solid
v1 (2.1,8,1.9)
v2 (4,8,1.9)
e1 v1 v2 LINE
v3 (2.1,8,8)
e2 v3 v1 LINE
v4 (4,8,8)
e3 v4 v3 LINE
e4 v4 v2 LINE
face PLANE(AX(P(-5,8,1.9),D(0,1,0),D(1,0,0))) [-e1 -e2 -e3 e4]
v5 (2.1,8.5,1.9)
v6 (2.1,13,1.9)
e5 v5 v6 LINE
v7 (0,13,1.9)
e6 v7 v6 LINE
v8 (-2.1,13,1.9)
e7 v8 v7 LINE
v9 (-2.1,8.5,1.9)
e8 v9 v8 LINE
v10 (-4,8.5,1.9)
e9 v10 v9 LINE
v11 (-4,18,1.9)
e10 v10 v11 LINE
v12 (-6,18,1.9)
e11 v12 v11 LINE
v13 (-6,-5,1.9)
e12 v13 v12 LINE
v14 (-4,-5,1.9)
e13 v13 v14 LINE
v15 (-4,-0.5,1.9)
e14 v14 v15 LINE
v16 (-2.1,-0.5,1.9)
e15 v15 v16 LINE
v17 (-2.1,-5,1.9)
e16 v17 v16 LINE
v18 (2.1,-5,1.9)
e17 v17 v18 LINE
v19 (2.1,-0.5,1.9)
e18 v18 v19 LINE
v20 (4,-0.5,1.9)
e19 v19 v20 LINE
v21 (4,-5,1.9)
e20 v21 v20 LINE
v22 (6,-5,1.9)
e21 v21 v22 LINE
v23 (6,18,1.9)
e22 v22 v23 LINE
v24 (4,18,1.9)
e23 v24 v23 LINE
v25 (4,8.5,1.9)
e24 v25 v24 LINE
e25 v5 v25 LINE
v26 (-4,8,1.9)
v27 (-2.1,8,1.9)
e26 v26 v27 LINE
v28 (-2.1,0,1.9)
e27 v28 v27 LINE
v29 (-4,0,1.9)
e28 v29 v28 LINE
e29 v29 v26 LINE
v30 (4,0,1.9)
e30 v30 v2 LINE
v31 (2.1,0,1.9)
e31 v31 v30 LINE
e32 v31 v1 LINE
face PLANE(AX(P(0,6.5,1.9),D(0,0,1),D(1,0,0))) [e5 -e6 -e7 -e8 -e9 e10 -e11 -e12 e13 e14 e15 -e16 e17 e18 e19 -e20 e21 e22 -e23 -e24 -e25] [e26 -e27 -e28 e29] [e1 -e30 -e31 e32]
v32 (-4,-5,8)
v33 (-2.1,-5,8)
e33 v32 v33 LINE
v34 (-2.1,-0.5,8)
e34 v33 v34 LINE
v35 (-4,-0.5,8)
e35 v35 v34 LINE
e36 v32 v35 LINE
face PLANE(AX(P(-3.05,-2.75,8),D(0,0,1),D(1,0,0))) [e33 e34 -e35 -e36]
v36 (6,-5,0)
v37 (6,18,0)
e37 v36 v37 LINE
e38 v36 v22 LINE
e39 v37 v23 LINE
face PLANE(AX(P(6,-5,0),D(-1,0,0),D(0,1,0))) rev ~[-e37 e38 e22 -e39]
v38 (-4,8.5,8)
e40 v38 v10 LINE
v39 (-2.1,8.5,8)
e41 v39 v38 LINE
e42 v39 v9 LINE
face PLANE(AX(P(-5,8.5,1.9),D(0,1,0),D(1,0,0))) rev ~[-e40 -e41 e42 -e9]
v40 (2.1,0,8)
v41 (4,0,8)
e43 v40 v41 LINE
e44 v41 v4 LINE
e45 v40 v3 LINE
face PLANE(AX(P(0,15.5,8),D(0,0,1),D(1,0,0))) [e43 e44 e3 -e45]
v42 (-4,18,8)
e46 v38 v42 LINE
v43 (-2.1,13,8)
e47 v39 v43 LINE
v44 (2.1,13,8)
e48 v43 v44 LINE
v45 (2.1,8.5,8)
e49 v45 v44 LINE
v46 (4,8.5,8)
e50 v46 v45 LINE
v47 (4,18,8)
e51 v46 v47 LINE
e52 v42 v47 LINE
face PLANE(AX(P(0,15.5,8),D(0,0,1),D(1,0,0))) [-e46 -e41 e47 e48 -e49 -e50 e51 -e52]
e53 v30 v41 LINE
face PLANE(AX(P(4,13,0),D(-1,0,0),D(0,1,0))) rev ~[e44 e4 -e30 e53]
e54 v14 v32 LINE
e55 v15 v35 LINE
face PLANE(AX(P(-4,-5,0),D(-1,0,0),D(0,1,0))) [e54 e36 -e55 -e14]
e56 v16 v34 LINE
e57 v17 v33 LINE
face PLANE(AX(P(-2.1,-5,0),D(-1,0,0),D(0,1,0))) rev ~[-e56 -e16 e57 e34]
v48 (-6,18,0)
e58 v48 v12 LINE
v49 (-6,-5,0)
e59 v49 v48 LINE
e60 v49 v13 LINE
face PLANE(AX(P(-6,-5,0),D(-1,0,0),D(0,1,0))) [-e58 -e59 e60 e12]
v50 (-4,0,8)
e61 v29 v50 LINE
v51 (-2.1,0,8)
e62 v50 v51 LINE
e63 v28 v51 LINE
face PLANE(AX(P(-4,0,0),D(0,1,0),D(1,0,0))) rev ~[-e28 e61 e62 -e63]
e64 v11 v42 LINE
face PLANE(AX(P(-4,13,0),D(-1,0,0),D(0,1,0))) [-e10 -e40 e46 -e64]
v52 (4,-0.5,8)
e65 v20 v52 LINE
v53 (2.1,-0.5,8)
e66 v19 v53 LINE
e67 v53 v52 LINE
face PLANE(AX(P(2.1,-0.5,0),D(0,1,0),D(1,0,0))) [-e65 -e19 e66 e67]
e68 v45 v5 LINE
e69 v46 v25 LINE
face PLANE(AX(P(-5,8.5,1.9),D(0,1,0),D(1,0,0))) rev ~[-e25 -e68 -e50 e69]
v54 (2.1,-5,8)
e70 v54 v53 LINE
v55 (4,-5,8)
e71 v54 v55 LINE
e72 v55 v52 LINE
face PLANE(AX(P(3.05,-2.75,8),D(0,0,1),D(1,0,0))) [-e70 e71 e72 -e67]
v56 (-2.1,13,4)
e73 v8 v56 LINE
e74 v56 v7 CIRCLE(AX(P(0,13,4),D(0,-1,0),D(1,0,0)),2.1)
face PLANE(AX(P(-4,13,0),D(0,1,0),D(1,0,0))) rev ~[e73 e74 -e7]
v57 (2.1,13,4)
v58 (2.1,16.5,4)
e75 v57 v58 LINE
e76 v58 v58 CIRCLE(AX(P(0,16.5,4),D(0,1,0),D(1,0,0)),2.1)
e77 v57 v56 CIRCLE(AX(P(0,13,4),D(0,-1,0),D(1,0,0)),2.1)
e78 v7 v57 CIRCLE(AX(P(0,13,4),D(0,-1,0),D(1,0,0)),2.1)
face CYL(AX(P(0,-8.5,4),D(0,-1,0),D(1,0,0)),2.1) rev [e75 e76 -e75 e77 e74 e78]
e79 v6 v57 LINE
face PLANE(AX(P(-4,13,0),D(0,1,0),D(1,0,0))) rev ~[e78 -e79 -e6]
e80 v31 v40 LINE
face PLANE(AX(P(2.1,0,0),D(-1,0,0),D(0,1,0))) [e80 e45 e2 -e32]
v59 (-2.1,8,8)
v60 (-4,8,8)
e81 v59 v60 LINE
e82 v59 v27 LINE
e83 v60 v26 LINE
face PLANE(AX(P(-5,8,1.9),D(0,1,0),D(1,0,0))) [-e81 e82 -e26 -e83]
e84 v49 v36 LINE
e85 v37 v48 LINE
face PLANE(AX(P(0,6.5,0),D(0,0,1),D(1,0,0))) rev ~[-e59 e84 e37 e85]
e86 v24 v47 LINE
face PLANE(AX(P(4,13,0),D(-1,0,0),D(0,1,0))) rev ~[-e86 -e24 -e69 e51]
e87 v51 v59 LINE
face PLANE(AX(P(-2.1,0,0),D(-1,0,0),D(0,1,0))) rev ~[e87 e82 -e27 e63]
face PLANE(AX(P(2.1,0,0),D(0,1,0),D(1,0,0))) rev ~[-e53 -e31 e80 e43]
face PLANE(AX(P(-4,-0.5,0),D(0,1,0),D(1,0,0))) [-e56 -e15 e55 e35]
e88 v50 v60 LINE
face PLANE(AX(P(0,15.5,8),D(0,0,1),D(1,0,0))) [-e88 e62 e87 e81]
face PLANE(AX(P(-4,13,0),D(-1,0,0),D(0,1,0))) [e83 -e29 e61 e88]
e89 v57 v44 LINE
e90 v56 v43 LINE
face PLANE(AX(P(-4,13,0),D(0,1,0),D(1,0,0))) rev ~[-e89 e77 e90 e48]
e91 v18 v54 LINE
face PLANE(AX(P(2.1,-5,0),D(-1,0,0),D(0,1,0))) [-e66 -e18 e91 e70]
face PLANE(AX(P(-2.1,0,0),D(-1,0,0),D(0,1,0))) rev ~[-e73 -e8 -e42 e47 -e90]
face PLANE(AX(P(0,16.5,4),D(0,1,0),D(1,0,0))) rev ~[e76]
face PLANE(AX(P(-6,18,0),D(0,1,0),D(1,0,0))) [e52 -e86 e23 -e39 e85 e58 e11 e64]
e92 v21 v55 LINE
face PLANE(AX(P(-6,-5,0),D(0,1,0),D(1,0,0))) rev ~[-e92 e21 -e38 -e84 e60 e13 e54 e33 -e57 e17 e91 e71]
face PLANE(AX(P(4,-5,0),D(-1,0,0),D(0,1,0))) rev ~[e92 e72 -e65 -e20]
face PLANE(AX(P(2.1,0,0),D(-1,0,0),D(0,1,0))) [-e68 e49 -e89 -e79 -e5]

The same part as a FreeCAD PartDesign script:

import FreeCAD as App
import Part
import Sketcher

doc = App.newDocument("Part")
body = doc.addObject("PartDesign::Body", "Body")

# Sketch on XY plane
sketch1 = body.newObject("Sketcher::SketchObject", "Sketch")
sketch1.AttachmentSupport = (doc.getObject("XY_Plane"), [""])
sketch1.MapMode = "FlatFace"
sketch1.AttachmentOffset = App.Placement(App.Vector(0, 0, 1.9), App.Rotation())
sketch1.addGeometry([
    Part.LineSegment(App.Vector(-5, 8.5, 0), App.Vector(-5, 8, 0)),
    Part.LineSegment(App.Vector(-5, 8, 0), App.Vector(5, 8, 0)),
    Part.LineSegment(App.Vector(5, 8, 0), App.Vector(5, 8.5, 0)),
    Part.LineSegment(App.Vector(5, 8.5, 0), App.Vector(-5, 8.5, 0)),
], False)
sketch1.addConstraint([
    Sketcher.Constraint("Coincident", 0, 2, 1, 1),
    Sketcher.Constraint("Coincident", 1, 2, 2, 1),
    Sketcher.Constraint("Coincident", 2, 2, 3, 1),
    Sketcher.Constraint("Coincident", 3, 2, 0, 1),
    Sketcher.Constraint("Vertical", 0),
    Sketcher.Constraint("Horizontal", 1),
    Sketcher.Constraint("Vertical", 2),
    Sketcher.Constraint("Horizontal", 3),
    Sketcher.Constraint("DistanceX", 1, 1, 1, 2, 10.0),
    Sketcher.Constraint("DistanceY", 0, 2, 0, 1, 0.5),
    Sketcher.Constraint("DistanceX", 0, 2, -1, 1, 5.0),
    Sketcher.Constraint("DistanceY", -1, 1, 0, 2, 8.0),
])
pad1 = body.newObject("PartDesign::Pad", "Pad")
pad1.Profile = sketch1
pad1.Length = 10
body2 = doc.addObject("PartDesign::Body", "Body001")

# Sketch on XY plane
sketch2 = body2.newObject("Sketcher::SketchObject", "Sketch001")
sketch2.AttachmentSupport = (doc.getObject("XY_Plane001"), [""])
sketch2.MapMode = "FlatFace"
sketch2.addGeometry([
    Part.LineSegment(App.Vector(2.1, 13, 0), App.Vector(2.1, 0, 0)),
    Part.LineSegment(App.Vector(2.1, 0, 0), App.Vector(4, 0, 0)),
    Part.LineSegment(App.Vector(4, 0, 0), App.Vector(4, 13, 0)),
    Part.LineSegment(App.Vector(4, 13, 0), App.Vector(2.1, 13, 0)),
], False)
sketch2.addConstraint([
    Sketcher.Constraint("Coincident", 0, 2, 1, 1),
    Sketcher.Constraint("Coincident", 1, 2, 2, 1),
    Sketcher.Constraint("Coincident", 2, 2, 3, 1),
    Sketcher.Constraint("Coincident", 3, 2, 0, 1),
    Sketcher.Constraint("Vertical", 0),
    Sketcher.Constraint("Horizontal", 1),
    Sketcher.Constraint("Vertical", 2),
    Sketcher.Constraint("Horizontal", 3),
    Sketcher.Constraint("PointOnObject", 0, 2, -1),
    Sketcher.Constraint("DistanceY", 0, 2, 0, 1, 13.0),
    Sketcher.Constraint("DistanceX", 1, 1, 1, 2, 1.9),
    Sketcher.Constraint("DistanceX", -1, 1, 1, 2, 4.0),
])
pad2 = body2.newObject("PartDesign::Pad", "Pad001")
pad2.Profile = sketch2
pad2.Length = 8
body3 = doc.addObject("PartDesign::Body", "Body002")

# Sketch on XY plane
sketch3 = body3.newObject("Sketcher::SketchObject", "Sketch002")
sketch3.AttachmentSupport = (doc.getObject("XY_Plane002"), [""])
sketch3.MapMode = "FlatFace"
sketch3.addGeometry([
    Part.LineSegment(App.Vector(2.1, -0.5, 0), App.Vector(2.1, -5, 0)),
    Part.LineSegment(App.Vector(2.1, -5, 0), App.Vector(4, -5, 0)),
    Part.LineSegment(App.Vector(4, -5, 0), App.Vector(4, -0.5, 0)),
    Part.LineSegment(App.Vector(4, -0.5, 0), App.Vector(2.1, -0.5, 0)),
], False)
sketch3.addConstraint([
    Sketcher.Constraint("Coincident", 0, 2, 1, 1),
    Sketcher.Constraint("Coincident", 1, 2, 2, 1),
    Sketcher.Constraint("Coincident", 2, 2, 3, 1),
    Sketcher.Constraint("Coincident", 3, 2, 0, 1),
    Sketcher.Constraint("Vertical", 0),
    Sketcher.Constraint("Horizontal", 1),
    Sketcher.Constraint("Vertical", 2),
    Sketcher.Constraint("Horizontal", 3),
    Sketcher.Constraint("DistanceX", 1, 1, 1, 2, 1.9),
    Sketcher.Constraint("DistanceY", 0, 2, 0, 1, 4.5),
    Sketcher.Constraint("DistanceY", 0, 2, -1, 1, 5.0),
    Sketcher.Constraint("DistanceX", -1, 1, 1, 2, 4.0),
])
pad3 = body3.newObject("PartDesign::Pad", "Pad002")
pad3.Profile = sketch3
pad3.Length = 8
body4 = doc.addObject("PartDesign::Body", "Body003")

# Sketch on XZ plane
sketch4 = body4.newObject("Sketcher::SketchObject", "Sketch003")
sketch4.AttachmentSupport = (doc.getObject("XZ_Plane003"), [""])
sketch4.MapMode = "FlatFace"
sketch4.AttachmentOffset = App.Placement(App.Vector(0, 0, 8.5), App.Rotation())
sketch4.addGeometry(Part.Circle(App.Vector(0, 4, 0), App.Vector(0, 0, 1), 2.1), False)
sketch4.addConstraint([
    Sketcher.Constraint("PointOnObject", 0, 3, -2),
    Sketcher.Constraint("Diameter", 0, 4.2),
    Sketcher.Constraint("DistanceY", -1, 1, 0, 3, 4.0),
])
pad4 = body4.newObject("PartDesign::Pad", "Pad003")
pad4.Profile = sketch4
pad4.Length = 25
pad4.Reversed = True
body5 = doc.addObject("PartDesign::Body", "Body004")

# Sketch on XY plane
sketch5 = body5.newObject("Sketcher::SketchObject", "Sketch004")
sketch5.AttachmentSupport = (doc.getObject("XY_Plane004"), [""])
sketch5.MapMode = "FlatFace"
sketch5.addGeometry([
    Part.LineSegment(App.Vector(-4, 18, 0), App.Vector(-4, 13, 0)),
    Part.LineSegment(App.Vector(-4, 13, 0), App.Vector(4, 13, 0)),
    Part.LineSegment(App.Vector(4, 13, 0), App.Vector(4, 18, 0)),
    Part.LineSegment(App.Vector(4, 18, 0), App.Vector(-4, 18, 0)),
], False)
sketch5.addConstraint([
    Sketcher.Constraint("Coincident", 0, 2, 1, 1),
    Sketcher.Constraint("Coincident", 1, 2, 2, 1),
    Sketcher.Constraint("Coincident", 2, 2, 3, 1),
    Sketcher.Constraint("Coincident", 3, 2, 0, 1),
    Sketcher.Constraint("Vertical", 0),
    Sketcher.Constraint("Horizontal", 1),
    Sketcher.Constraint("Vertical", 2),
    Sketcher.Constraint("Horizontal", 3),
    Sketcher.Constraint("DistanceX", 1, 1, 1, 2, 8.0),
    Sketcher.Constraint("DistanceY", 0, 2, 0, 1, 5.0),
    Sketcher.Constraint("DistanceX", 0, 2, -1, 1, 4.0),
    Sketcher.Constraint("DistanceY", -1, 1, 0, 2, 13.0),
])
pad5 = body5.newObject("PartDesign::Pad", "Pad004")
pad5.Profile = sketch5
pad5.Length = 8
doc.recompute()

boolean = body5.newObject("PartDesign::Boolean", "Boolean")
boolean.Type = "Cut"
boolean.addObjects([body4])
body6 = doc.addObject("PartDesign::Body", "Body005")

# Sketch on XY plane
sketch6 = body6.newObject("Sketcher::SketchObject", "Sketch005")
sketch6.AttachmentSupport = (doc.getObject("XY_Plane005"), [""])
sketch6.MapMode = "FlatFace"
sketch6.addGeometry([
    Part.LineSegment(App.Vector(-4, -0.5, 0), App.Vector(-4, -5, 0)),
    Part.LineSegment(App.Vector(-4, -5, 0), App.Vector(-2.1, -5, 0)),
    Part.LineSegment(App.Vector(-2.1, -5, 0), App.Vector(-2.1, -0.5, 0)),
    Part.LineSegment(App.Vector(-2.1, -0.5, 0), App.Vector(-4, -0.5, 0)),
], False)
sketch6.addConstraint([
    Sketcher.Constraint("Coincident", 0, 2, 1, 1),
    Sketcher.Constraint("Coincident", 1, 2, 2, 1),
    Sketcher.Constraint("Coincident", 2, 2, 3, 1),
    Sketcher.Constraint("Coincident", 3, 2, 0, 1),
    Sketcher.Constraint("Vertical", 0),
    Sketcher.Constraint("Horizontal", 1),
    Sketcher.Constraint("Vertical", 2),
    Sketcher.Constraint("Horizontal", 3),
    Sketcher.Constraint("DistanceX", 1, 1, 1, 2, 1.9),
    Sketcher.Constraint("DistanceY", 0, 2, 0, 1, 4.5),
    Sketcher.Constraint("DistanceX", 0, 2, -1, 1, 4.0),
    Sketcher.Constraint("DistanceY", 0, 2, -1, 1, 5.0),
])
pad6 = body6.newObject("PartDesign::Pad", "Pad005")
pad6.Profile = sketch6
pad6.Length = 8
body7 = doc.addObject("PartDesign::Body", "Body006")

# Sketch on XY plane
sketch7 = body7.newObject("Sketcher::SketchObject", "Sketch006")
sketch7.AttachmentSupport = (doc.getObject("XY_Plane006"), [""])
sketch7.MapMode = "FlatFace"
sketch7.addGeometry([
    Part.LineSegment(App.Vector(-6, 18, 0), App.Vector(-6, -5, 0)),
    Part.LineSegment(App.Vector(-6, -5, 0), App.Vector(6, -5, 0)),
    Part.LineSegment(App.Vector(6, -5, 0), App.Vector(6, 18, 0)),
    Part.LineSegment(App.Vector(6, 18, 0), App.Vector(-6, 18, 0)),
], False)
sketch7.addConstraint([
    Sketcher.Constraint("Coincident", 0, 2, 1, 1),
    Sketcher.Constraint("Coincident", 1, 2, 2, 1),
    Sketcher.Constraint("Coincident", 2, 2, 3, 1),
    Sketcher.Constraint("Coincident", 3, 2, 0, 1),
    Sketcher.Constraint("Vertical", 0),
    Sketcher.Constraint("Horizontal", 1),
    Sketcher.Constraint("Vertical", 2),
    Sketcher.Constraint("Horizontal", 3),
    Sketcher.Constraint("DistanceX", 1, 1, 1, 2, 12.0),
    Sketcher.Constraint("DistanceY", 0, 2, 0, 1, 23.0),
    Sketcher.Constraint("DistanceX", 0, 2, -1, 1, 6.0),
    Sketcher.Constraint("DistanceY", 0, 2, -1, 1, 5.0),
])
pad7 = body7.newObject("PartDesign::Pad", "Pad006")
pad7.Profile = sketch7
pad7.Length = 1.9
body8 = doc.addObject("PartDesign::Body", "Body007")
body8.AllowCompound = True

# Sketch on XY plane
sketch8 = body8.newObject("Sketcher::SketchObject", "Sketch007")
sketch8.AttachmentSupport = (doc.getObject("XY_Plane007"), [""])
sketch8.MapMode = "FlatFace"
sketch8.addGeometry([
    Part.LineSegment(App.Vector(-4, 13, 0), App.Vector(-4, 0, 0)),
    Part.LineSegment(App.Vector(-4, 0, 0), App.Vector(-2.1, 0, 0)),
    Part.LineSegment(App.Vector(-2.1, 0, 0), App.Vector(-2.1, 13, 0)),
    Part.LineSegment(App.Vector(-2.1, 13, 0), App.Vector(-4, 13, 0)),
], False)
sketch8.addConstraint([
    Sketcher.Constraint("Coincident", 0, 2, 1, 1),
    Sketcher.Constraint("Coincident", 1, 2, 2, 1),
    Sketcher.Constraint("Coincident", 2, 2, 3, 1),
    Sketcher.Constraint("Coincident", 3, 2, 0, 1),
    Sketcher.Constraint("Vertical", 0),
    Sketcher.Constraint("Horizontal", 1),
    Sketcher.Constraint("Vertical", 2),
    Sketcher.Constraint("Horizontal", 3),
    Sketcher.Constraint("PointOnObject", 0, 2, -1),
    Sketcher.Constraint("DistanceY", 0, 2, 0, 1, 13.0),
    Sketcher.Constraint("DistanceX", 1, 1, 1, 2, 1.9),
    Sketcher.Constraint("DistanceX", 0, 2, -1, 1, 4.0),
])
pad8 = body8.newObject("PartDesign::Pad", "Pad007")
pad8.Profile = sketch8
pad8.Length = 8
doc.recompute()

boolean2 = body8.newObject("PartDesign::Boolean", "Boolean001")
boolean2.Type = "Fuse"
boolean2.addObjects([body2])
doc.recompute()

boolean3 = body8.newObject("PartDesign::Boolean", "Boolean002")
boolean3.Type = "Fuse"
boolean3.addObjects([body3])
doc.recompute()

boolean4 = body8.newObject("PartDesign::Boolean", "Boolean003")
boolean4.Type = "Fuse"
boolean4.addObjects([body5])
doc.recompute()

boolean5 = body8.newObject("PartDesign::Boolean", "Boolean004")
boolean5.Type = "Fuse"
boolean5.addObjects([body6])
doc.recompute()

boolean6 = body8.newObject("PartDesign::Boolean", "Boolean005")
boolean6.Type = "Fuse"
boolean6.addObjects([body7])
doc.recompute()

boolean7 = body8.newObject("PartDesign::Boolean", "Boolean006")
boolean7.Type = "Cut"
boolean7.addObjects([body])

doc.recompute()
